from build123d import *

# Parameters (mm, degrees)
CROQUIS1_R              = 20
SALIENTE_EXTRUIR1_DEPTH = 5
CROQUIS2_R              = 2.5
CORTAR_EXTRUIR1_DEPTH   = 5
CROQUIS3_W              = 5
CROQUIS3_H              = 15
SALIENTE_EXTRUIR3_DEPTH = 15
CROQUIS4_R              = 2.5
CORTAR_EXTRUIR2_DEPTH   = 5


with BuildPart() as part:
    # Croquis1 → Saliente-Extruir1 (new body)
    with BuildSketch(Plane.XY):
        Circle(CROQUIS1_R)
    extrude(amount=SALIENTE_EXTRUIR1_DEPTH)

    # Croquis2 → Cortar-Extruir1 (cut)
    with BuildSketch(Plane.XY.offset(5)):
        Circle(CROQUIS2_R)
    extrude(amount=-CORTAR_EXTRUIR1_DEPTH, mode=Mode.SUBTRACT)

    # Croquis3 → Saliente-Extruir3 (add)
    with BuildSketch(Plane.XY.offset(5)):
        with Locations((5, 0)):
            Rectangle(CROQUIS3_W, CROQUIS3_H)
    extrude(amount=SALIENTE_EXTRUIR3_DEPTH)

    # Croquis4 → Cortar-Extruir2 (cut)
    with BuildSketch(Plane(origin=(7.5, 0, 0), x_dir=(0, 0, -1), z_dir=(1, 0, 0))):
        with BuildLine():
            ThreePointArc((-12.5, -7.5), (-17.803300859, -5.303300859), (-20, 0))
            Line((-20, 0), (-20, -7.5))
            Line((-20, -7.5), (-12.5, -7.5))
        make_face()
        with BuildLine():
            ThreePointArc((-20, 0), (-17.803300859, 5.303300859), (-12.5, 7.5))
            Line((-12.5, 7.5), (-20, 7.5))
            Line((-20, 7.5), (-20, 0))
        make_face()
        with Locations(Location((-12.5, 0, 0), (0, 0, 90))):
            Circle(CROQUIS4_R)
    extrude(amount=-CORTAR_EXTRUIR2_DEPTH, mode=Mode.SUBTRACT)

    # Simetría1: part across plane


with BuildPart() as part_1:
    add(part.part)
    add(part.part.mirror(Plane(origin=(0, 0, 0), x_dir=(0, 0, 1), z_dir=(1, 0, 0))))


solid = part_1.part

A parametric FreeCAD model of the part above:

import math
import FreeCAD as App
import Part
import Sketcher

V = App.Vector


def add_polygon(sketch, points):
    """Adds a closed chain of lines whose ends are joined by coincident constraints."""
    first, n = sketch.GeometryCount, len(points)
    for a, b in zip(points, points[1:] + points[:1]):
        sketch.addGeometry(Part.LineSegment(App.Vector(*a, 0), App.Vector(*b, 0)), False)
    for i in range(n):
        sketch.addConstraint(Sketcher.Constraint("Coincident", first + i, 2, first + (i + 1) % n, 1))

doc = App.newDocument("Part")
body = doc.addObject("PartDesign::Body", "Body")

# Sketch on XY plane
sketch1 = body.newObject("Sketcher::SketchObject", "Sketch")
sketch1.AttachmentSupport = (doc.getObject("XY_Plane"), [""])
sketch1.MapMode = "FlatFace"
sketch1.addGeometry(Part.Circle(V(0, 0, 0), V(0, 0, 1), 20), False)
sketch1.addConstraint([
    Sketcher.Constraint("Coincident", 0, 3, -1, 1),
    Sketcher.Constraint("Diameter", 0, 40.0),
])
pad1 = body.newObject("PartDesign::Pad", "Pad")
pad1.Profile = sketch1
pad1.Length = 5

# Sketch on XY plane
sketch2 = body.newObject("Sketcher::SketchObject", "Sketch001")
sketch2.AttachmentSupport = (doc.getObject("XY_Plane"), [""])
sketch2.MapMode = "FlatFace"
sketch2.AttachmentOffset = App.Placement(V(0, 0, 5), App.Rotation())
sketch2.addGeometry(Part.Circle(V(0, 0, 0), V(0, 0, 1), 2.5), False)
sketch2.addConstraint([
    Sketcher.Constraint("Coincident", 0, 3, -1, 1),
    Sketcher.Constraint("Diameter", 0, 5.0),
])
pocket1 = body.newObject("PartDesign::Pocket", "Pocket")
pocket1.Profile = sketch2
pocket1.Length = 5

# Sketch on XY plane
sketch3 = body.newObject("Sketcher::SketchObject", "Sketch002")
sketch3.AttachmentSupport = (doc.getObject("XY_Plane"), [""])
sketch3.MapMode = "FlatFace"
sketch3.AttachmentOffset = App.Placement(V(0, 0, 5), App.Rotation())
add_polygon(sketch3, [(2, 8), (2, -8), (8, -8), (8, 8)])  # lines 0-3
sketch3.addConstraint([
    Sketcher.Constraint("Vertical", 0),
    Sketcher.Constraint("Horizontal", 1),
    Sketcher.Constraint("Vertical", 2),
    Sketcher.Constraint("Horizontal", 3),
    Sketcher.Constraint("DistanceX", 1, 1, 1, 2, 5.0),
    Sketcher.Constraint("DistanceY", 0, 2, 0, 1, 15.0),
    Sketcher.Constraint("DistanceX", -1, 1, 0, 2, 2.5),
    Sketcher.Constraint("DistanceY", 0, 2, -1, 1, 7.5),
])
pad2 = body.newObject("PartDesign::Pad", "Pad001")
pad2.Profile = sketch3
pad2.Length = 15

# Sketch on YZ plane
sketch4 = body.newObject("Sketcher::SketchObject", "Sketch003")
sketch4.AttachmentSupport = (doc.getObject("YZ_Plane"), [""])
sketch4.MapMode = "FlatFace"
sketch4.AttachmentOffset = App.Placement(V(0, 0, 7.5), App.Rotation())
sketch4.addGeometry([
    Part.ArcOfCircle(Part.Circle(V(0, 12.5, 0), V(0, 0, 1), 7.5), math.radians(90), math.radians(180)),  # 0
    Part.LineSegment(V(0, 20, 0), V(-7.5, 20, 0)),  # 1
    Part.LineSegment(V(-7.5, 20, 0), V(-7.5, 12.5, 0)),  # 2
    Part.ArcOfCircle(Part.Circle(V(0, 12.5, 0), V(0, 0, 1), 7.5), math.radians(0), math.radians(90)),  # 3
    Part.LineSegment(V(7.5, 12.5, 0), V(7.5, 20, 0)),  # 4
    Part.LineSegment(V(7.5, 20, 0), V(0, 20, 0)),  # 5
    Part.Circle(V(0, 12.5, 0), V(0, 0, 1), 2.5),  # 6
], False)
sketch4.addConstraint([
    Sketcher.Constraint("Tangent", 0, 1, 1, 1),
    Sketcher.Constraint("Coincident", 1, 2, 2, 1),
    Sketcher.Constraint("Tangent", 2, 2, 0, 2),
    Sketcher.Constraint("Tangent", 3, 1, 4, 1),
    Sketcher.Constraint("Coincident", 4, 2, 5, 1),
    Sketcher.Constraint("Tangent", 5, 2, 3, 2),
    Sketcher.Constraint("Horizontal", 1),
    Sketcher.Constraint("Vertical", 2),
    Sketcher.Constraint("Vertical", 4),
    Sketcher.Constraint("Horizontal", 5),
    Sketcher.Constraint("Coincident", 3, 3, 0, 3),
    Sketcher.Constraint("Coincident", 6, 3, 0, 3),
    Sketcher.Constraint("Equal", 0, 3),
    Sketcher.Constraint("PointOnObject", 0, 3, -2),
    Sketcher.Constraint("Diameter", 6, 5.0),
    Sketcher.Constraint("Radius", 0, 7.5),
    Sketcher.Constraint("DistanceY", -1, 1, 0, 1, 20.0),
])
pocket2 = body.newObject("PartDesign::Pocket", "Pocket001")
pocket2.Profile = sketch4
pocket2.Length = 5
body2 = doc.addObject("PartDesign::Body", "Body001")
doc.recompute()

body2.BaseFeature = body
doc.recompute()

mirroring = doc.addObject("Part::Mirroring", "Mirroring")
mirroring.Source = body
mirroring.Base = V(0, 0, 0)
mirroring.Normal = V(1, 0, 0)
body3 = doc.addObject("PartDesign::Body", "Body002")
body3.BaseFeature = mirroring
boolean = body2.newObject("PartDesign::Boolean", "Boolean")
boolean.Type = "Fuse"
boolean.addObjects([body3])
doc.recompute()
mirroring.Visibility = False

doc.recompute()
